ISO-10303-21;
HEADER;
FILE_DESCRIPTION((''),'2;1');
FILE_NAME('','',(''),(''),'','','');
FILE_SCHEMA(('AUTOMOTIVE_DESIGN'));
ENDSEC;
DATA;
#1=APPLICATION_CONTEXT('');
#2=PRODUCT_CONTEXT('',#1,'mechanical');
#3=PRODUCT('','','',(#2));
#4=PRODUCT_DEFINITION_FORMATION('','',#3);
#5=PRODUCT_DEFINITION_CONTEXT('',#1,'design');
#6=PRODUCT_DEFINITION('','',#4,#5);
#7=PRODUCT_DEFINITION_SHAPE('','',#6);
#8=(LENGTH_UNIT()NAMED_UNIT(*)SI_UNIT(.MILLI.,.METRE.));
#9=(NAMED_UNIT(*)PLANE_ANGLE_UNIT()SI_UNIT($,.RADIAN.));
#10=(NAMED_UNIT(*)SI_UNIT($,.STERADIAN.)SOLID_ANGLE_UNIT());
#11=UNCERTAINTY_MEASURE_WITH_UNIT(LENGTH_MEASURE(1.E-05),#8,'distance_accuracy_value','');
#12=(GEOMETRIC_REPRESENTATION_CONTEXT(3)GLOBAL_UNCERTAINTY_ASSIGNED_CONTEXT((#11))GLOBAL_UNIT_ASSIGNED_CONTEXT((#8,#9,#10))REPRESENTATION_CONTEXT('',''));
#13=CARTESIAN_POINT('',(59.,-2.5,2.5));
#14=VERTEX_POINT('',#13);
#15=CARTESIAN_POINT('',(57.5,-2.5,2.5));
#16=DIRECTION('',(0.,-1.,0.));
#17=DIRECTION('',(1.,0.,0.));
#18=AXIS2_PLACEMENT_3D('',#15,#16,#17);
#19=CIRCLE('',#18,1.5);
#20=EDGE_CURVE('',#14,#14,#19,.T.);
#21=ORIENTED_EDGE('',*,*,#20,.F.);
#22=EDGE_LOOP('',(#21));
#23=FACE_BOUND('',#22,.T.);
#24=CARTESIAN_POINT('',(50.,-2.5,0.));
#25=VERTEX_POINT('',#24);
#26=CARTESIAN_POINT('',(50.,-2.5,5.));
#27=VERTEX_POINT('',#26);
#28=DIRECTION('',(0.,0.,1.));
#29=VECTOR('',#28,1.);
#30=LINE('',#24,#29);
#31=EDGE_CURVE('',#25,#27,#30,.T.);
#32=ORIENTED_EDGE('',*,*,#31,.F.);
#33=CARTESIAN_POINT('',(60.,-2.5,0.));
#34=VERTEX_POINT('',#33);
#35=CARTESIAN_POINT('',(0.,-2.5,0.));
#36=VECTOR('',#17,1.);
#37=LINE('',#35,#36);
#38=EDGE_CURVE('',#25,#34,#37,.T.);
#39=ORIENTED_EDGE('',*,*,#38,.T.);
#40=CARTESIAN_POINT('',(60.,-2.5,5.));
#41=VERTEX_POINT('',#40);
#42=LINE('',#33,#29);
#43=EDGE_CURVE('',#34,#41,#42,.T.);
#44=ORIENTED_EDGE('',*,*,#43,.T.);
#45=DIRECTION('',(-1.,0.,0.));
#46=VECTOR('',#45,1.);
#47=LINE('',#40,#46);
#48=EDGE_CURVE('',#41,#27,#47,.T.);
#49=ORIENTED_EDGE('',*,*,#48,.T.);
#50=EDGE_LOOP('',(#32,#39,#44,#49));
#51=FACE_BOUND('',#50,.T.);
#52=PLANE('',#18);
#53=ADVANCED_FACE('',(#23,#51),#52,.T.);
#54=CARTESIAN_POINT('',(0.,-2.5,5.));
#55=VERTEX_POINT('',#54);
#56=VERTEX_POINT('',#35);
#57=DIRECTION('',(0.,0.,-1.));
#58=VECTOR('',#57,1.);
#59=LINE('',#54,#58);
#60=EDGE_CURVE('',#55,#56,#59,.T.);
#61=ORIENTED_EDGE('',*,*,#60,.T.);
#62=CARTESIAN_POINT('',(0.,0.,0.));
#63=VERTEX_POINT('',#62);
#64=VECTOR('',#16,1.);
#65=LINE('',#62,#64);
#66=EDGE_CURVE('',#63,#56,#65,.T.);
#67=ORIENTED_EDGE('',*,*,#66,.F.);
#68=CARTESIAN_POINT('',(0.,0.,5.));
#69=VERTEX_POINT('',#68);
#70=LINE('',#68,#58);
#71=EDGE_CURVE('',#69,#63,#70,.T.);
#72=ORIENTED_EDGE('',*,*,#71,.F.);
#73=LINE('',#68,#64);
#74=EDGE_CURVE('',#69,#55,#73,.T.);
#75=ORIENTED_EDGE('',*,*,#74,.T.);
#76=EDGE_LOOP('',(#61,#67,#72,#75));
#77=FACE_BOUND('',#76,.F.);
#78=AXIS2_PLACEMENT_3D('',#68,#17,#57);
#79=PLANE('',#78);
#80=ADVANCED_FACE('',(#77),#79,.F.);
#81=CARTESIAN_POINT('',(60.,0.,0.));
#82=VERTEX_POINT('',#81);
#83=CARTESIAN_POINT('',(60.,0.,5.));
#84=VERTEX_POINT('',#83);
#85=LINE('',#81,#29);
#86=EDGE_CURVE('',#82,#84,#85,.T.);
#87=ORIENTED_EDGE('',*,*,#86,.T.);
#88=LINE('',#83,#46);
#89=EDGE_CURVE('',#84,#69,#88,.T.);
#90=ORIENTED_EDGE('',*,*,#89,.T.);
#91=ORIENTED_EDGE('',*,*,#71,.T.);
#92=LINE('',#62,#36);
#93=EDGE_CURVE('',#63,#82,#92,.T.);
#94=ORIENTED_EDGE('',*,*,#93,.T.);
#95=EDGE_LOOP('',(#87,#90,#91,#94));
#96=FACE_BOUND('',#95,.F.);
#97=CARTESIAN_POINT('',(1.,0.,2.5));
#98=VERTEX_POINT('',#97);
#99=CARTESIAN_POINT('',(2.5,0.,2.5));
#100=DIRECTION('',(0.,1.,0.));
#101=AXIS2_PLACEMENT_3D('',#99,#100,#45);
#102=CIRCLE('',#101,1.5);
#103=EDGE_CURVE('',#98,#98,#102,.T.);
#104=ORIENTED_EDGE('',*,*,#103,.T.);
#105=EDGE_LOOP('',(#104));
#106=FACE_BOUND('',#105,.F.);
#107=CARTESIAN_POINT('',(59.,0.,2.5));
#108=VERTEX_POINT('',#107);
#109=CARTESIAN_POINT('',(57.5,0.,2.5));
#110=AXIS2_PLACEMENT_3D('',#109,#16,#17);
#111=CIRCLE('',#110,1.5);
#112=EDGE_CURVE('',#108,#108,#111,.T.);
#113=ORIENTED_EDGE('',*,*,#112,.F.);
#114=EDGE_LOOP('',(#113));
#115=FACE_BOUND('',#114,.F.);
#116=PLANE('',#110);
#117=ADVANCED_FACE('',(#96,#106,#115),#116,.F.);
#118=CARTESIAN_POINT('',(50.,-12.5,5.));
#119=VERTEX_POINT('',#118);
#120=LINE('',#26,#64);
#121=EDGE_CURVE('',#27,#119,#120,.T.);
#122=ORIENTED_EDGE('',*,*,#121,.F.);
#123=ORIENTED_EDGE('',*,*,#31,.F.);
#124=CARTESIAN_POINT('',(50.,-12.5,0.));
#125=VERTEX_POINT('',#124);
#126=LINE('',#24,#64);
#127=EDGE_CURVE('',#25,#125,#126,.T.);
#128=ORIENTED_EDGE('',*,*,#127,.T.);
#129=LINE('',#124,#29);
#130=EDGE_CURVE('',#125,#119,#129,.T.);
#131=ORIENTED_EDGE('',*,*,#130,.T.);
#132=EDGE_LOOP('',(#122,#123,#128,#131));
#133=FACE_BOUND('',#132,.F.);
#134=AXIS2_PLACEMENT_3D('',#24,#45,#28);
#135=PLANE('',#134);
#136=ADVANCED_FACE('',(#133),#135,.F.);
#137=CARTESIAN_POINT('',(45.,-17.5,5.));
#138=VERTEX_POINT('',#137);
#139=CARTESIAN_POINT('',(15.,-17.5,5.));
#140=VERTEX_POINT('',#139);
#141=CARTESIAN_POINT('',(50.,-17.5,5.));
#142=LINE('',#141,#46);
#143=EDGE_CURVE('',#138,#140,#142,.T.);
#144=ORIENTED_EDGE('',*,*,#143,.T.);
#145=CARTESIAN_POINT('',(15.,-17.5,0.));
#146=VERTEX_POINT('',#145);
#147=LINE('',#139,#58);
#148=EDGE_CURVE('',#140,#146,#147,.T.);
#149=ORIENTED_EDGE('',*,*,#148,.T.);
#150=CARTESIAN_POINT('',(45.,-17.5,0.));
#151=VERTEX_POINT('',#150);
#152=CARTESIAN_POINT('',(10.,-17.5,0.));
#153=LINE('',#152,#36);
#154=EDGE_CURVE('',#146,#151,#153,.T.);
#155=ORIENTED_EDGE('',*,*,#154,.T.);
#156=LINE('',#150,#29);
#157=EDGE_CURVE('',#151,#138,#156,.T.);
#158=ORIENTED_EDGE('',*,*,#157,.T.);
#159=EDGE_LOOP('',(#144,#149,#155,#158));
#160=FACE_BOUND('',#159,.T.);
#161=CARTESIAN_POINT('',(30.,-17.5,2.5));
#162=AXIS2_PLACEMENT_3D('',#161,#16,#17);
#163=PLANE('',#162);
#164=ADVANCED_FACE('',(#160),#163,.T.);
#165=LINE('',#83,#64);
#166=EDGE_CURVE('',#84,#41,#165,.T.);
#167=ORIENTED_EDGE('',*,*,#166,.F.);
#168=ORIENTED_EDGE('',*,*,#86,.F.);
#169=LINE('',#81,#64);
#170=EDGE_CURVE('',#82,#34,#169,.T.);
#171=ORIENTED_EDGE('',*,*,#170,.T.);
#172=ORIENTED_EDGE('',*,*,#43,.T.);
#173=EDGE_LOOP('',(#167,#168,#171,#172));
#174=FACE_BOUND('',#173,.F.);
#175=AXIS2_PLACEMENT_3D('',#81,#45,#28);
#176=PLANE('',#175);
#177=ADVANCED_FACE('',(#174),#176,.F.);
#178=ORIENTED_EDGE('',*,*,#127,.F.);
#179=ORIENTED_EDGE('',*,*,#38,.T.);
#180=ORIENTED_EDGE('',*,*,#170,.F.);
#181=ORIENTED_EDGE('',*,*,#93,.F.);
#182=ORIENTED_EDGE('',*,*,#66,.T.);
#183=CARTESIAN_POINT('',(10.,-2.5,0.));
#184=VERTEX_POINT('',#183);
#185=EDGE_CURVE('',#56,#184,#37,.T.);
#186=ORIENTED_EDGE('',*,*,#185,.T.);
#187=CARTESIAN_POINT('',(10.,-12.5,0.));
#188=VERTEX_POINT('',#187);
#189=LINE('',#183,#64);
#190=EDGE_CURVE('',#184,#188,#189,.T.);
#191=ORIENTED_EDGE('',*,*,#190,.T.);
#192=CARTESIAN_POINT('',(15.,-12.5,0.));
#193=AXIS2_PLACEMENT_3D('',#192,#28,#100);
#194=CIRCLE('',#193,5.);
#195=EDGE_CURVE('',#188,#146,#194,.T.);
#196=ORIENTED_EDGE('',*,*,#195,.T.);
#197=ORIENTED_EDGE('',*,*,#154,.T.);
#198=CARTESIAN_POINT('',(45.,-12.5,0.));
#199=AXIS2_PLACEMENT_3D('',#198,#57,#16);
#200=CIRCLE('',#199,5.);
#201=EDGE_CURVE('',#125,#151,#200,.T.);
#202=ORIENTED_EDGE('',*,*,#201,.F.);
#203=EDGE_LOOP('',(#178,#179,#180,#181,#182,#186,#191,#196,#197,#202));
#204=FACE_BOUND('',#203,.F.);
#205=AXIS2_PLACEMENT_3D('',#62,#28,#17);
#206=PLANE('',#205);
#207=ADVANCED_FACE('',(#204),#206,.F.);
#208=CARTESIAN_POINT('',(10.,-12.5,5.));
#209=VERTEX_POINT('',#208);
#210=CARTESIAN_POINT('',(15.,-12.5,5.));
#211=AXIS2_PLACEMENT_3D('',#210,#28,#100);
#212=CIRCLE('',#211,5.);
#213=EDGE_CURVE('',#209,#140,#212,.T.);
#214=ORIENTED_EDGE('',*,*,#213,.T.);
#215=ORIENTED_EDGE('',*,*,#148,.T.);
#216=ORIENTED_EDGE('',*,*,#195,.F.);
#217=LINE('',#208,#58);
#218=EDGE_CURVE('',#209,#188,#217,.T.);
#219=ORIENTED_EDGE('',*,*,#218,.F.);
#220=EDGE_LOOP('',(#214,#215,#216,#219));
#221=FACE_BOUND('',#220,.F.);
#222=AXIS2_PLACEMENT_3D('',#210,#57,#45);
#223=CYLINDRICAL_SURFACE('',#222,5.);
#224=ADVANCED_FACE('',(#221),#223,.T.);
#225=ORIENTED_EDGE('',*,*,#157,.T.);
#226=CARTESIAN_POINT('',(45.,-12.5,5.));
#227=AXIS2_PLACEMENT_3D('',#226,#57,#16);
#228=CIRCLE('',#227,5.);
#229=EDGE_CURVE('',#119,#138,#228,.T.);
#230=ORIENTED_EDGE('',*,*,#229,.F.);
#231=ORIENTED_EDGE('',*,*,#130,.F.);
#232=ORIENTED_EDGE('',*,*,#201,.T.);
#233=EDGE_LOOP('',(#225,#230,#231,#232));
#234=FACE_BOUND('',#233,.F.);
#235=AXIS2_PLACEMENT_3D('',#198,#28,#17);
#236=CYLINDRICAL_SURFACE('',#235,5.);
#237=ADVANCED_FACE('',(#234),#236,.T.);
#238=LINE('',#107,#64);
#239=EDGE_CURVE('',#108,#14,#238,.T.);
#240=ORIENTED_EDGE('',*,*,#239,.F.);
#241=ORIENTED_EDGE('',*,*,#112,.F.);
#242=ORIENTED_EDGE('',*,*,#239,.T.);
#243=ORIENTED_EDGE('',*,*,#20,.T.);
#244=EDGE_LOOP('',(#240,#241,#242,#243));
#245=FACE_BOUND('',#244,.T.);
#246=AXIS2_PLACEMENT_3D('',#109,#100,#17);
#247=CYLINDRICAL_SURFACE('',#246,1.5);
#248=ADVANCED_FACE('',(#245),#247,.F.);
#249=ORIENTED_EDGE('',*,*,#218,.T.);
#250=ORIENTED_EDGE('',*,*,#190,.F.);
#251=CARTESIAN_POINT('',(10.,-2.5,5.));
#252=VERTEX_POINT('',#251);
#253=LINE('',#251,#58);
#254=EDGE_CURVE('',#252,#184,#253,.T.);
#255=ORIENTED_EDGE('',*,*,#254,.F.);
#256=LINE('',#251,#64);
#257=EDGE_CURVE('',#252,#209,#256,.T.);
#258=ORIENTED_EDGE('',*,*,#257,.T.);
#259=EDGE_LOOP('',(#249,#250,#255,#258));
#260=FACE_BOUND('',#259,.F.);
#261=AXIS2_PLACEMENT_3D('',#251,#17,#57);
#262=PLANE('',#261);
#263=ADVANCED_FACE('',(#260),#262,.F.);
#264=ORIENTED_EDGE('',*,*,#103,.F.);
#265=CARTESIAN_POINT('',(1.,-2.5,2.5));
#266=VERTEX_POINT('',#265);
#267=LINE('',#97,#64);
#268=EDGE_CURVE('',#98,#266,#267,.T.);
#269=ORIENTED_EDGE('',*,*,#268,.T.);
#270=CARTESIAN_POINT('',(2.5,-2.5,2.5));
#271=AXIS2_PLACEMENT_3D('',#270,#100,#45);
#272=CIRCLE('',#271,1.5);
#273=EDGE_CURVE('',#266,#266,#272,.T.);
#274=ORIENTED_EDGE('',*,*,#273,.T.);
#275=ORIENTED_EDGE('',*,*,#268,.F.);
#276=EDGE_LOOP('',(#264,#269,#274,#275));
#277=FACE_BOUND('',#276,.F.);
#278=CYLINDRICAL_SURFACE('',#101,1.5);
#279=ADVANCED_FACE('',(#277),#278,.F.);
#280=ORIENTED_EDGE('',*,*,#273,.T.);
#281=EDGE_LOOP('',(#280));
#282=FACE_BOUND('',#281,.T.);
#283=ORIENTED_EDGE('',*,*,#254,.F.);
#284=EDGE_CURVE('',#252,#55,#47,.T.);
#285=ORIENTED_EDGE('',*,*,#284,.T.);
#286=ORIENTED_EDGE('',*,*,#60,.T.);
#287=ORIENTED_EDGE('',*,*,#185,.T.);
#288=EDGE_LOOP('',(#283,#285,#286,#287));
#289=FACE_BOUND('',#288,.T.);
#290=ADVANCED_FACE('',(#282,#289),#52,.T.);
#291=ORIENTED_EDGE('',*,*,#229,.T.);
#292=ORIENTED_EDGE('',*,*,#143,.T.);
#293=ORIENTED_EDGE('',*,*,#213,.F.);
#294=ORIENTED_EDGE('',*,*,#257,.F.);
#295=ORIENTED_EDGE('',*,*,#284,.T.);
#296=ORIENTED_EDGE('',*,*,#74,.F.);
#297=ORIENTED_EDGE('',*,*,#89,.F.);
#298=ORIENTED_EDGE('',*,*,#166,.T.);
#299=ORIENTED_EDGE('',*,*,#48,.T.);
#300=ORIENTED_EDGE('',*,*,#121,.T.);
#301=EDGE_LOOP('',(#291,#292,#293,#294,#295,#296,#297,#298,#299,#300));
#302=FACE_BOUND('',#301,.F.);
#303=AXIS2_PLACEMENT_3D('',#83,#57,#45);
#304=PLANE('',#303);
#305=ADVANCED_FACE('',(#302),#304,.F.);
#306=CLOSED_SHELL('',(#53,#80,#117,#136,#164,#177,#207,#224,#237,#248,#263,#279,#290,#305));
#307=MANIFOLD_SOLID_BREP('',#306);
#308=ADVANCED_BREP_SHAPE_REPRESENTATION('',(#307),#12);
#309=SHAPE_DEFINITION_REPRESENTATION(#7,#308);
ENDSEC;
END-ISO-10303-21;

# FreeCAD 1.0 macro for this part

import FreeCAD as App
import Part
import Sketcher
from FreeCAD import Vector
Q = App.Units.Quantity


def edges_at(feature, points):
    """Names of the edges that pass closest to the given points."""
    edges = feature.Shape.Edges
    near = lambda p: min(range(len(edges)), key=lambda i: edges[i].distToShape(Part.Vertex(*p))[0])
    return sorted({f"Edge{near(p) + 1}" for p in points})

doc = App.newDocument("Part")
body = doc.addObject("PartDesign::Body", "Body")

sketch1 = body.newObject("Sketcher::SketchObject", "Sketch")
sketch1.AttachmentSupport = (doc.getObject("XZ_Plane"), [""])
sketch1.MapMode = "FlatFace"
sketch1.addGeometry(Part.LineSegment(Vector(0, 0, 0), Vector(60, 0, 0)), False)
sketch1.addGeometry(Part.LineSegment(Vector(60, 0, 0), Vector(60, 5, 0)), False)
sketch1.addGeometry(Part.LineSegment(Vector(60, 5, 0), Vector(0, 5, 0)), False)
sketch1.addGeometry(Part.LineSegment(Vector(0, 5, 0), Vector(0, 0, 0)), False)
sketch1.addGeometry(Part.Circle(Vector(2.5, 2.5, 0), Vector(0, 0, 1), 1.5), False)
sketch1.addGeometry(Part.Circle(Vector(57.5, 2.5, 0), Vector(0, 0, 1), 1.5), False)
sketch1.addConstraint(Sketcher.Constraint("Coincident", 0, 2, 1, 1))
sketch1.addConstraint(Sketcher.Constraint("Coincident", 1, 2, 2, 1))
sketch1.addConstraint(Sketcher.Constraint("Coincident", 2, 2, 3, 1))
sketch1.addConstraint(Sketcher.Constraint("Coincident", 3, 2, 0, 1))
sketch1.addConstraint(Sketcher.Constraint("Horizontal", 0))
sketch1.addConstraint(Sketcher.Constraint("Vertical", 1))
sketch1.addConstraint(Sketcher.Constraint("Horizontal", 2))
sketch1.addConstraint(Sketcher.Constraint("Vertical", 3))
sketch1.addConstraint(Sketcher.Constraint("Coincident", 3, 2, -1, 1))
sketch1.addConstraint(Sketcher.Constraint("Equal", 4, 5))
sketch1.addConstraint(Sketcher.Constraint("Horizontal", 4, 3, 5, 3))
sketch1.addConstraint(Sketcher.Constraint("Diameter", 4, Q("3 mm")))
sketch1.addConstraint(Sketcher.Constraint("DistanceX", 0, 1, 0, 2, Q("60 mm")))
sketch1.addConstraint(Sketcher.Constraint("DistanceY", 1, 1, 1, 2, Q("5 mm")))
sketch1.addConstraint(Sketcher.Constraint("DistanceX", 4, 3, 5, 3, Q("55 mm")))
sketch1.addConstraint(Sketcher.Constraint("DistanceX", -1, 1, 4, 3, Q("2.5 mm")))
sketch1.addConstraint(Sketcher.Constraint("DistanceY", -1, 1, 4, 3, Q("2.5 mm")))
pad1 = body.newObject("PartDesign::Pad", "Pad")
pad1.Profile = sketch1
pad1.Length = 2.5

sketch2 = body.newObject("Sketcher::SketchObject", "Sketch001")
sketch2.AttachmentSupport = (doc.getObject("XZ_Plane"), [""])
sketch2.MapMode = "FlatFace"
sketch2.AttachmentOffset = App.Placement(Vector(0, 0, 2.5), App.Rotation())
sketch2.addGeometry(Part.LineSegment(Vector(50, 5, 0), Vector(10, 5, 0)), False)
sketch2.addGeometry(Part.LineSegment(Vector(10, 5, 0), Vector(10, 0, 0)), False)
sketch2.addGeometry(Part.LineSegment(Vector(10, 0, 0), Vector(50, 0, 0)), False)
sketch2.addGeometry(Part.LineSegment(Vector(50, 0, 0), Vector(50, 5, 0)), False)
sketch2.addConstraint(Sketcher.Constraint("Coincident", 0, 2, 1, 1))
sketch2.addConstraint(Sketcher.Constraint("Coincident", 1, 2, 2, 1))
sketch2.addConstraint(Sketcher.Constraint("Coincident", 2, 2, 3, 1))
sketch2.addConstraint(Sketcher.Constraint("Coincident", 3, 2, 0, 1))
sketch2.addConstraint(Sketcher.Constraint("Horizontal", 0))
sketch2.addConstraint(Sketcher.Constraint("Vertical", 1))
sketch2.addConstraint(Sketcher.Constraint("Horizontal", 2))
sketch2.addConstraint(Sketcher.Constraint("Vertical", 3))
sketch2.addConstraint(Sketcher.Constraint("PointOnObject", 1, 2, -1))
sketch2.addConstraint(Sketcher.Constraint("DistanceX", 0, 2, 0, 1, Q("40 mm")))
sketch2.addConstraint(Sketcher.Constraint("DistanceY", 1, 2, 1, 1, Q("5 mm")))
sketch2.addConstraint(Sketcher.Constraint("DistanceX", -1, 1, 0, 2, Q("10 mm")))
pad2 = body.newObject("PartDesign::Pad", "Pad001")
pad2.Profile = sketch2
pad2.Length = 15
doc.recompute()

fillet = body.newObject("PartDesign::Fillet", "Fillet")
fillet.Base = (pad2, edges_at(pad2, [(10, -17.5, 2.5), (50, -17.5, 2.5)]))
fillet.Radius = 5

doc.recompute()
